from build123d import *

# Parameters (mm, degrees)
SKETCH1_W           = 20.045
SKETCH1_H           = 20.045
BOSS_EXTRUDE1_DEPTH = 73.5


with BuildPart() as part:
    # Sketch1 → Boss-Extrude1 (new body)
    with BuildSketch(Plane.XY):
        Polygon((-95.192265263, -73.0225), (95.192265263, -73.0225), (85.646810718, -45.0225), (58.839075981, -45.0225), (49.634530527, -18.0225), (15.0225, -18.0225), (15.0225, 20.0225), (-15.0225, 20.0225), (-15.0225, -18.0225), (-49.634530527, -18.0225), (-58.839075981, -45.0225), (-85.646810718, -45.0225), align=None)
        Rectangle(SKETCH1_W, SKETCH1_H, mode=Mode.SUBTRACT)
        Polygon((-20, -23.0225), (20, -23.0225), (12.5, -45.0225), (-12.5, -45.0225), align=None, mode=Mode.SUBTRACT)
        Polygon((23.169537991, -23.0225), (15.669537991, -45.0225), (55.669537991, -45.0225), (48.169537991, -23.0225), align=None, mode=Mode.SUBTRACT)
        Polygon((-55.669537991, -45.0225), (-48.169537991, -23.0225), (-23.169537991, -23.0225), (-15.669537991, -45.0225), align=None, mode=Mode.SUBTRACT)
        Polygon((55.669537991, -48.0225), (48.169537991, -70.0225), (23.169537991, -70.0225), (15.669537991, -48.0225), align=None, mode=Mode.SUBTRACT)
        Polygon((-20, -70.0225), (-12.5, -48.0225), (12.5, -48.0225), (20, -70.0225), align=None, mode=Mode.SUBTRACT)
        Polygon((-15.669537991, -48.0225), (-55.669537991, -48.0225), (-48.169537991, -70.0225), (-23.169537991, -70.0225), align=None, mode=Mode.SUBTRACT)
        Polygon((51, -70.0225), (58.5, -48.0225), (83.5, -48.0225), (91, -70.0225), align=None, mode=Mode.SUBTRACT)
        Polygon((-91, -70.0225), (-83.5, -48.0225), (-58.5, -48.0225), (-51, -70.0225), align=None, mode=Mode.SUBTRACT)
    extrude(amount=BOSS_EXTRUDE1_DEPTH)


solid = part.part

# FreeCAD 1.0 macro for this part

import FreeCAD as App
import Part
import Sketcher

V = App.Vector
Q = App.Units.Quantity


def add_polygon(sketch, points):
    """Adds a closed chain of lines whose ends are joined by coincident constraints."""
    first, n = sketch.GeometryCount, len(points)
    for a, b in zip(points, points[1:] + points[:1]):
        sketch.addGeometry(Part.LineSegment(App.Vector(*a, 0), App.Vector(*b, 0)), False)
    for i in range(n):
        sketch.addConstraint(Sketcher.Constraint("Coincident", first + i, 2, first + (i + 1) % n, 1))

doc = App.newDocument("Part")
body = doc.addObject("PartDesign::Body", "Body")

# Sketch on XY plane
sketch1 = body.newObject("Sketcher::SketchObject", "Sketch")
sketch1.AttachmentSupport = (doc.getObject("XY_Plane"), [""])
sketch1.MapMode = "FlatFace"
add_polygon(sketch1, [(-95, -73), (95, -73), (86, -45), (59, -45), (50, -18), (15, -18), (15, 20), (-15, 20), (-15, -18), (-50, -18), (-59, -45), (-86, -45)])  # lines 0-11
add_polygon(sketch1, [(-51, -70), (-91, -70), (-84, -48), (-58, -48)])  # lines 12-15
add_polygon(sketch1, [(-56, -48), (-16, -48), (-23, -70), (-48, -70)])  # lines 16-19
add_polygon(sketch1, [(-16, -45), (-56, -45), (-48, -23), (-23, -23)])  # lines 20-23
add_polygon(sketch1, [(20, -70), (-20, -70), (-12, -48), (12, -48)])  # lines 24-27
add_polygon(sketch1, [(16, -48), (56, -48), (48, -70), (23, -70)])  # lines 28-31
add_polygon(sketch1, [(91, -70), (51, -70), (58, -48), (84, -48)])  # lines 32-35
add_polygon(sketch1, [(-12, -45), (-20, -23), (20, -23), (12, -45)])  # lines 36-39
add_polygon(sketch1, [(16, -45), (23, -23), (48, -23), (56, -45)])  # lines 40-43
add_polygon(sketch1, [(10, -10), (-10, -10), (-10, 10), (10, 10)])  # lines 44-47
sketch1.addConstraint(Sketcher.Constraint("Horizontal", 0))
sketch1.addConstraint(Sketcher.Constraint("Horizontal", 2))
sketch1.addConstraint(Sketcher.Constraint("Horizontal", 4))
sketch1.addConstraint(Sketcher.Constraint("Vertical", 5))
sketch1.addConstraint(Sketcher.Constraint("Horizontal", 6))
sketch1.addConstraint(Sketcher.Constraint("Vertical", 7))
sketch1.addConstraint(Sketcher.Constraint("Horizontal", 8))
sketch1.addConstraint(Sketcher.Constraint("Horizontal", 10))
sketch1.addConstraint(Sketcher.Constraint("Horizontal", 12))
sketch1.addConstraint(Sketcher.Constraint("Horizontal", 14))
sketch1.addConstraint(Sketcher.Constraint("Horizontal", 16))
sketch1.addConstraint(Sketcher.Constraint("Horizontal", 18))
sketch1.addConstraint(Sketcher.Constraint("Horizontal", 20))
sketch1.addConstraint(Sketcher.Constraint("Horizontal", 22))
sketch1.addConstraint(Sketcher.Constraint("Horizontal", 24))
sketch1.addConstraint(Sketcher.Constraint("Horizontal", 26))
sketch1.addConstraint(Sketcher.Constraint("Horizontal", 28))
sketch1.addConstraint(Sketcher.Constraint("Horizontal", 30))
sketch1.addConstraint(Sketcher.Constraint("Horizontal", 32))
sketch1.addConstraint(Sketcher.Constraint("Horizontal", 34))
sketch1.addConstraint(Sketcher.Constraint("Horizontal", 37))
sketch1.addConstraint(Sketcher.Constraint("Horizontal", 39))
sketch1.addConstraint(Sketcher.Constraint("Horizontal", 41))
sketch1.addConstraint(Sketcher.Constraint("Horizontal", 43))
sketch1.addConstraint(Sketcher.Constraint("Horizontal", 44))
sketch1.addConstraint(Sketcher.Constraint("Vertical", 45))
sketch1.addConstraint(Sketcher.Constraint("Horizontal", 46))
sketch1.addConstraint(Sketcher.Constraint("Vertical", 47))
sketch1.addConstraint(Sketcher.Constraint("Symmetric", 44, 2, 46, 2, -1, 1))
sketch1.addConstraint(Sketcher.Constraint("Symmetric", 4, 2, 7, 2, -2))
sketch1.addConstraint(Sketcher.Constraint("Symmetric", 2, 2, 9, 2, -2))
sketch1.addConstraint(Sketcher.Constraint("Symmetric", 19, 2, 28, 2, -2))
sketch1.addConstraint(Sketcher.Constraint("Symmetric", 18, 2, 29, 2, -2))
sketch1.addConstraint(Sketcher.Constraint("Symmetric", 15, 2, 32, 2, -2))
sketch1.addConstraint(Sketcher.Constraint("Symmetric", 14, 2, 33, 2, -2))
sketch1.addConstraint(Sketcher.Constraint("Symmetric", 22, 2, 40, 2, -2))
sketch1.addConstraint(Sketcher.Constraint("Symmetric", 20, 2, 42, 2, -2))
sketch1.addConstraint(Sketcher.Constraint("Parallel", 1, 3))
sketch1.addConstraint(Sketcher.Constraint("Parallel", 9, 11))
sketch1.addConstraint(Sketcher.Constraint("Parallel", 11, 13))
sketch1.addConstraint(Sketcher.Constraint("Parallel", 3, 15))
sketch1.addConstraint(Sketcher.Constraint("Parallel", 13, 17))
sketch1.addConstraint(Sketcher.Constraint("Parallel", 15, 19))
sketch1.addConstraint(Sketcher.Constraint("Parallel", 17, 21))
sketch1.addConstraint(Sketcher.Constraint("Parallel", 19, 23))
sketch1.addConstraint(Sketcher.Constraint("Parallel", 21, 25))
sketch1.addConstraint(Sketcher.Constraint("Parallel", 23, 27))
sketch1.addConstraint(Sketcher.Constraint("Parallel", 25, 29))
sketch1.addConstraint(Sketcher.Constraint("Parallel", 27, 31))
sketch1.addConstraint(Sketcher.Constraint("Parallel", 31, 35))
sketch1.addConstraint(Sketcher.Constraint("Parallel", 35, 36))
sketch1.addConstraint(Sketcher.Constraint("Parallel", 33, 38))
sketch1.addConstraint(Sketcher.Constraint("Parallel", 38, 40))
sketch1.addConstraint(Sketcher.Constraint("Parallel", 36, 42))
sketch1.addConstraint(Sketcher.Constraint("Horizontal", 14, 2, 16, 2))
sketch1.addConstraint(Sketcher.Constraint("Horizontal", 15, 2, 17, 2))
sketch1.addConstraint(Sketcher.Constraint("Horizontal", 10, 2, 20, 2))
sketch1.addConstraint(Sketcher.Constraint("Horizontal", 18, 2, 24, 2))
sketch1.addConstraint(Sketcher.Constraint("Horizontal", 19, 2, 25, 2))
sketch1.addConstraint(Sketcher.Constraint("Horizontal", 22, 2, 36, 2))
sketch1.addConstraint(Sketcher.Constraint("Horizontal", 23, 2, 38, 2))
sketch1.addConstraint(Sketcher.Constraint("Vertical", 19, 2, 20, 2))
sketch1.addConstraint(Sketcher.Constraint("Vertical", 18, 2, 21, 2))
sketch1.addConstraint(Sketcher.Constraint("Vertical", 17, 2, 22, 2))
sketch1.addConstraint(Sketcher.Constraint("Vertical", 24, 2, 36, 2))
sketch1.addConstraint(Sketcher.Constraint("Vertical", 27, 2, 37, 2))
sketch1.addConstraint(Sketcher.Constraint("Vertical", 30, 2, 40, 2))
sketch1.addConstraint(Sketcher.Constraint("Equal", 2, 10))
sketch1.addConstraint(Sketcher.Constraint("Equal", 12, 16))
sketch1.addConstraint(Sketcher.Constraint("Equal", 20, 24))
sketch1.addConstraint(Sketcher.Constraint("Equal", 28, 32))
sketch1.addConstraint(Sketcher.Constraint("Equal", 46, 45))
sketch1.addConstraint(Sketcher.Constraint("DistanceX", 12, 2, 12, 1, Q("40 mm")))
sketch1.addConstraint(Sketcher.Constraint("DistanceX", 14, 1, 14, 2, Q("25 mm")))
sketch1.addConstraint(Sketcher.Constraint("DistanceX", 12, 2, -1, 1, Q("91 mm")))
sketch1.addConstraint(Sketcher.Constraint("DistanceX", 24, 2, -1, 1, Q("20 mm")))
sketch1.addConstraint(Sketcher.Constraint("DistanceY", 0, 2, 1, 2, Q("28 mm")))
sketch1.addConstraint(Sketcher.Constraint("DistanceY", 2, 2, 3, 2, Q("27 mm")))
sketch1.addConstraint(Sketcher.Constraint("DistanceY", 11, 2, 12, 2, Q("3 mm")))
sketch1.addConstraint(Sketcher.Constraint("DistanceY", 13, 2, 10, 2, Q("3 mm")))
sketch1.addConstraint(Sketcher.Constraint("DistanceX", 7, 2, 44, 2, Q("5 mm")))
sketch1.addConstraint(Sketcher.Constraint("DistanceY", 7, 2, 44, 2, Q("8 mm")))
sketch1.addConstraint(Sketcher.Constraint("DistanceY", 45, 2, 6, 2, Q("10 mm")))
sketch1.addConstraint(Sketcher.Constraint("DistanceX", 6, 2, 6, 1, Q("30.045 mm")))
sketch1.addConstraint(Sketcher.Constraint("DistanceX", 0, 1, 0, 2, Q("190.384531 mm")))
sketch1.addConstraint(Sketcher.Constraint("DistanceX", 4, 2, 4, 1, Q("34.612031 mm")))
sketch1.addConstraint(Sketcher.Constraint("DistanceX", 16, 2, -1, 1, Q("15.669538 mm")))
pad1 = body.newObject("PartDesign::Pad", "Pad")
pad1.Profile = sketch1
pad1.Length = 73.5

doc.recompute()
